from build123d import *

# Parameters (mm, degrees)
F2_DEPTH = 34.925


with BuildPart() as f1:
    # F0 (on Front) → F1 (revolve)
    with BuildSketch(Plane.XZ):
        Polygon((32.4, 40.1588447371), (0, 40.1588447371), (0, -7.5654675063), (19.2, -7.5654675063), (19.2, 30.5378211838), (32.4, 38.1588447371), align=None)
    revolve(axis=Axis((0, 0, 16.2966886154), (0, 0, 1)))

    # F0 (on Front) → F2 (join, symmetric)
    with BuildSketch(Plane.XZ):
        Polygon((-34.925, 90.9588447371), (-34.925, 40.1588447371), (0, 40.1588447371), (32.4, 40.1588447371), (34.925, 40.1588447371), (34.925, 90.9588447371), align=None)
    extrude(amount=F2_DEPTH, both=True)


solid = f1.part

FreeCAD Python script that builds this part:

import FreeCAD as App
import Part
import Sketcher
Q = App.Units.Quantity


def add_polygon(sketch, points):
    """Adds a closed chain of lines whose ends are joined by coincident constraints."""
    first, n = sketch.GeometryCount, len(points)
    for a, b in zip(points, points[1:] + points[:1]):
        sketch.addGeometry(Part.LineSegment(App.Vector(*a, 0), App.Vector(*b, 0)), False)
    for i in range(n):
        sketch.addConstraint(Sketcher.Constraint("Coincident", first + i, 2, first + (i + 1) % n, 1))

doc = App.newDocument("Part")
body = doc.addObject("PartDesign::Body", "Body")

# Sketch on XZ plane
sketch1 = body.newObject("Sketcher::SketchObject", "Sketch")
sketch1.AttachmentSupport = (doc.getObject("XZ_Plane"), [""])
sketch1.MapMode = "FlatFace"
add_polygon(sketch1, [(32.4, 40.2), (0, 40.2), (0, -7.6), (19.2, -7.6), (19.2, 30.5), (32.4, 38.2)])  # lines 0-5
sketch1.addConstraint(Sketcher.Constraint("Horizontal", 0))
sketch1.addConstraint(Sketcher.Constraint("Vertical", 1))
sketch1.addConstraint(Sketcher.Constraint("Horizontal", 2))
sketch1.addConstraint(Sketcher.Constraint("Vertical", 3))
sketch1.addConstraint(Sketcher.Constraint("Vertical", 5))
sketch1.addConstraint(Sketcher.Constraint("PointOnObject", 0, 2, -2))
sketch1.addConstraint(Sketcher.Constraint("DistanceY", 5, 1, 5, 2, Q("2 mm")))
sketch1.addConstraint(Sketcher.Constraint("Angle", 4, Q("30 deg")))
sketch1.addConstraint(Sketcher.Constraint("DistanceX", 0, 2, 0, 1, Q("32.4 mm")))
sketch1.addConstraint(Sketcher.Constraint("DistanceX", 2, 1, 2, 2, Q("19.2 mm")))
sketch1.addConstraint(Sketcher.Constraint("DistanceY", 3, 1, 3, 2, Q("38.103289 mm")))
sketch1.addConstraint(Sketcher.Constraint("DistanceY", -1, 1, 3, 2, Q("30.537821 mm")))
revolution = body.newObject("PartDesign::Revolution", "Revolution")
revolution.Profile = sketch1
revolution.ReferenceAxis = (sketch1, ["V_Axis"])
revolution.Angle = 360

# Sketch on XZ plane
sketch2 = body.newObject("Sketcher::SketchObject", "Sketch001")
sketch2.AttachmentSupport = (doc.getObject("XZ_Plane"), [""])
sketch2.MapMode = "FlatFace"
add_polygon(sketch2, [(-35, 91), (-35, 40), (35, 40), (35, 91)])  # lines 0-3
sketch2.addConstraint(Sketcher.Constraint("Vertical", 0))
sketch2.addConstraint(Sketcher.Constraint("Horizontal", 1))
sketch2.addConstraint(Sketcher.Constraint("Vertical", 2))
sketch2.addConstraint(Sketcher.Constraint("Horizontal", 3))
sketch2.addConstraint(Sketcher.Constraint("DistanceY", 0, 2, 0, 1, Q("50.8 mm")))
sketch2.addConstraint(Sketcher.Constraint("DistanceX", 1, 1, 1, 2, Q("69.85 mm")))
sketch2.addConstraint(Sketcher.Constraint("DistanceX", 0, 2, -1, 1, Q("34.925 mm")))
sketch2.addConstraint(Sketcher.Constraint("DistanceY", -1, 1, 0, 2, Q("40.158845 mm")))
pad1 = body.newObject("PartDesign::Pad", "Pad")
pad1.Profile = sketch2
pad1.Length = 69.85
pad1.Midplane = True

doc.recompute()
